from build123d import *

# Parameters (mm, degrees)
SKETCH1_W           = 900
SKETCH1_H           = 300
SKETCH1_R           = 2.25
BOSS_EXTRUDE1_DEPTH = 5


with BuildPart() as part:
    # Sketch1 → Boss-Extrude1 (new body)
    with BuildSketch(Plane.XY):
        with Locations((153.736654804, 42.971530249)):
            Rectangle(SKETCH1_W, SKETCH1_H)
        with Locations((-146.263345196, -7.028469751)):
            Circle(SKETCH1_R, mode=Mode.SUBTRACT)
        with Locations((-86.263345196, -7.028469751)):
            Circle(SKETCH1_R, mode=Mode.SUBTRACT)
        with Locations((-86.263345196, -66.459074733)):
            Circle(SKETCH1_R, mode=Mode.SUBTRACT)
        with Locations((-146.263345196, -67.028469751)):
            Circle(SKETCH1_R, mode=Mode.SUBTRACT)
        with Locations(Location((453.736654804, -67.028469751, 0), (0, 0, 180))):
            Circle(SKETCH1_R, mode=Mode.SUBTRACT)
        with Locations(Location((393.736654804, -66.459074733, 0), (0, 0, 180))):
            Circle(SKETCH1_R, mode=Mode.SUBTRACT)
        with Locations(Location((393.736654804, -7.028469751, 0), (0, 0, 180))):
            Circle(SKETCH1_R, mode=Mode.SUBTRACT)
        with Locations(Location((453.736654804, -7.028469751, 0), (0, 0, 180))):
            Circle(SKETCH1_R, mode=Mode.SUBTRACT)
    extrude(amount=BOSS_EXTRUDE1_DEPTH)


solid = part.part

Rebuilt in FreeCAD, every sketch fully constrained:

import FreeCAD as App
import Part
import Sketcher


def add_polygon(sketch, points):
    """Adds a closed chain of lines whose ends are joined by coincident constraints."""
    first, n = sketch.GeometryCount, len(points)
    for a, b in zip(points, points[1:] + points[:1]):
        sketch.addGeometry(Part.LineSegment(App.Vector(*a, 0), App.Vector(*b, 0)), False)
    for i in range(n):
        sketch.addConstraint(Sketcher.Constraint("Coincident", first + i, 2, first + (i + 1) % n, 1))

doc = App.newDocument("Part")
body = doc.addObject("PartDesign::Body", "Body")

# Sketch on XY plane
sketch1 = body.newObject("Sketcher::SketchObject", "Sketch")
sketch1.AttachmentSupport = (doc.getObject("XY_Plane"), [""])
sketch1.MapMode = "FlatFace"
add_polygon(sketch1, [(-296.3, 193), (-296.3, -107), (603.7, -107), (603.7, 193)])  # lines 0-3
sketch1.addGeometry(Part.Circle(App.Vector(-146.3, -67, 0), App.Vector(0, 0, 1), 2.2), False)  # 4
sketch1.addGeometry(Part.Circle(App.Vector(-86.3, -66.5, 0), App.Vector(0, 0, 1), 2.2), False)  # 5
sketch1.addGeometry(Part.Circle(App.Vector(393.7, -66.5, 0), App.Vector(0, 0, 1), 2.2), False)  # 6
sketch1.addGeometry(Part.Circle(App.Vector(453.7, -67, 0), App.Vector(0, 0, 1), 2.2), False)  # 7
sketch1.addGeometry(Part.Circle(App.Vector(-146.3, -7, 0), App.Vector(0, 0, 1), 2.2), False)  # 8
sketch1.addGeometry(Part.Circle(App.Vector(-86.3, -7, 0), App.Vector(0, 0, 1), 2.2), False)  # 9
sketch1.addGeometry(Part.Circle(App.Vector(393.7, -7, 0), App.Vector(0, 0, 1), 2.2), False)  # 10
sketch1.addGeometry(Part.Circle(App.Vector(453.7, -7, 0), App.Vector(0, 0, 1), 2.2), False)  # 11
sketch1.addConstraint(Sketcher.Constraint("Vertical", 0))
sketch1.addConstraint(Sketcher.Constraint("Horizontal", 1))
sketch1.addConstraint(Sketcher.Constraint("Vertical", 2))
sketch1.addConstraint(Sketcher.Constraint("Horizontal", 3))
sketch1.addConstraint(Sketcher.Constraint("Equal", 4, 5))
sketch1.addConstraint(Sketcher.Constraint("Equal", 5, 6))
sketch1.addConstraint(Sketcher.Constraint("Equal", 6, 7))
sketch1.addConstraint(Sketcher.Constraint("Equal", 7, 8))
sketch1.addConstraint(Sketcher.Constraint("Equal", 8, 9))
sketch1.addConstraint(Sketcher.Constraint("Equal", 9, 10))
sketch1.addConstraint(Sketcher.Constraint("Equal", 10, 11))
sketch1.addConstraint(Sketcher.Constraint("Horizontal", 5, 3, 6, 3))
sketch1.addConstraint(Sketcher.Constraint("Horizontal", 4, 3, 7, 3))
sketch1.addConstraint(Sketcher.Constraint("Horizontal", 8, 3, 9, 3))
sketch1.addConstraint(Sketcher.Constraint("Horizontal", 9, 3, 10, 3))
sketch1.addConstraint(Sketcher.Constraint("Horizontal", 10, 3, 11, 3))
sketch1.addConstraint(Sketcher.Constraint("Vertical", 4, 3, 8, 3))
sketch1.addConstraint(Sketcher.Constraint("Vertical", 5, 3, 9, 3))
sketch1.addConstraint(Sketcher.Constraint("Vertical", 6, 3, 10, 3))
sketch1.addConstraint(Sketcher.Constraint("Vertical", 7, 3, 11, 3))
sketch1.addConstraint(Sketcher.Constraint("Diameter", 4, 4.5))
sketch1.addConstraint(Sketcher.Constraint("DistanceX", 1, 1, 1, 2, 900.0))
sketch1.addConstraint(Sketcher.Constraint("DistanceY", 0, 2, 0, 1, 300.0))
sketch1.addConstraint(Sketcher.Constraint("DistanceX", 4, 3, 5, 3, 60.0))
sketch1.addConstraint(Sketcher.Constraint("DistanceX", 5, 3, 6, 3, 480.0))
sketch1.addConstraint(Sketcher.Constraint("DistanceX", 6, 3, 7, 3, 60.0))
sketch1.addConstraint(Sketcher.Constraint("DistanceY", 4, 3, 8, 3, 60.0))
sketch1.addConstraint(Sketcher.Constraint("DistanceX", 0, 2, 4, 3, 150.0))
sketch1.addConstraint(Sketcher.Constraint("DistanceY", 0, 2, 4, 3, 40.0))
sketch1.addConstraint(Sketcher.Constraint("DistanceY", 4, 3, -1, 1, 67.02847))
sketch1.addConstraint(Sketcher.Constraint("DistanceX", 4, 3, -1, 1, 146.263345))
sketch1.addConstraint(Sketcher.Constraint("DistanceY", 5, 3, -1, 1, 66.459075))
pad1 = body.newObject("PartDesign::Pad", "Pad")
pad1.Profile = sketch1
pad1.Length = 5

doc.recompute()
